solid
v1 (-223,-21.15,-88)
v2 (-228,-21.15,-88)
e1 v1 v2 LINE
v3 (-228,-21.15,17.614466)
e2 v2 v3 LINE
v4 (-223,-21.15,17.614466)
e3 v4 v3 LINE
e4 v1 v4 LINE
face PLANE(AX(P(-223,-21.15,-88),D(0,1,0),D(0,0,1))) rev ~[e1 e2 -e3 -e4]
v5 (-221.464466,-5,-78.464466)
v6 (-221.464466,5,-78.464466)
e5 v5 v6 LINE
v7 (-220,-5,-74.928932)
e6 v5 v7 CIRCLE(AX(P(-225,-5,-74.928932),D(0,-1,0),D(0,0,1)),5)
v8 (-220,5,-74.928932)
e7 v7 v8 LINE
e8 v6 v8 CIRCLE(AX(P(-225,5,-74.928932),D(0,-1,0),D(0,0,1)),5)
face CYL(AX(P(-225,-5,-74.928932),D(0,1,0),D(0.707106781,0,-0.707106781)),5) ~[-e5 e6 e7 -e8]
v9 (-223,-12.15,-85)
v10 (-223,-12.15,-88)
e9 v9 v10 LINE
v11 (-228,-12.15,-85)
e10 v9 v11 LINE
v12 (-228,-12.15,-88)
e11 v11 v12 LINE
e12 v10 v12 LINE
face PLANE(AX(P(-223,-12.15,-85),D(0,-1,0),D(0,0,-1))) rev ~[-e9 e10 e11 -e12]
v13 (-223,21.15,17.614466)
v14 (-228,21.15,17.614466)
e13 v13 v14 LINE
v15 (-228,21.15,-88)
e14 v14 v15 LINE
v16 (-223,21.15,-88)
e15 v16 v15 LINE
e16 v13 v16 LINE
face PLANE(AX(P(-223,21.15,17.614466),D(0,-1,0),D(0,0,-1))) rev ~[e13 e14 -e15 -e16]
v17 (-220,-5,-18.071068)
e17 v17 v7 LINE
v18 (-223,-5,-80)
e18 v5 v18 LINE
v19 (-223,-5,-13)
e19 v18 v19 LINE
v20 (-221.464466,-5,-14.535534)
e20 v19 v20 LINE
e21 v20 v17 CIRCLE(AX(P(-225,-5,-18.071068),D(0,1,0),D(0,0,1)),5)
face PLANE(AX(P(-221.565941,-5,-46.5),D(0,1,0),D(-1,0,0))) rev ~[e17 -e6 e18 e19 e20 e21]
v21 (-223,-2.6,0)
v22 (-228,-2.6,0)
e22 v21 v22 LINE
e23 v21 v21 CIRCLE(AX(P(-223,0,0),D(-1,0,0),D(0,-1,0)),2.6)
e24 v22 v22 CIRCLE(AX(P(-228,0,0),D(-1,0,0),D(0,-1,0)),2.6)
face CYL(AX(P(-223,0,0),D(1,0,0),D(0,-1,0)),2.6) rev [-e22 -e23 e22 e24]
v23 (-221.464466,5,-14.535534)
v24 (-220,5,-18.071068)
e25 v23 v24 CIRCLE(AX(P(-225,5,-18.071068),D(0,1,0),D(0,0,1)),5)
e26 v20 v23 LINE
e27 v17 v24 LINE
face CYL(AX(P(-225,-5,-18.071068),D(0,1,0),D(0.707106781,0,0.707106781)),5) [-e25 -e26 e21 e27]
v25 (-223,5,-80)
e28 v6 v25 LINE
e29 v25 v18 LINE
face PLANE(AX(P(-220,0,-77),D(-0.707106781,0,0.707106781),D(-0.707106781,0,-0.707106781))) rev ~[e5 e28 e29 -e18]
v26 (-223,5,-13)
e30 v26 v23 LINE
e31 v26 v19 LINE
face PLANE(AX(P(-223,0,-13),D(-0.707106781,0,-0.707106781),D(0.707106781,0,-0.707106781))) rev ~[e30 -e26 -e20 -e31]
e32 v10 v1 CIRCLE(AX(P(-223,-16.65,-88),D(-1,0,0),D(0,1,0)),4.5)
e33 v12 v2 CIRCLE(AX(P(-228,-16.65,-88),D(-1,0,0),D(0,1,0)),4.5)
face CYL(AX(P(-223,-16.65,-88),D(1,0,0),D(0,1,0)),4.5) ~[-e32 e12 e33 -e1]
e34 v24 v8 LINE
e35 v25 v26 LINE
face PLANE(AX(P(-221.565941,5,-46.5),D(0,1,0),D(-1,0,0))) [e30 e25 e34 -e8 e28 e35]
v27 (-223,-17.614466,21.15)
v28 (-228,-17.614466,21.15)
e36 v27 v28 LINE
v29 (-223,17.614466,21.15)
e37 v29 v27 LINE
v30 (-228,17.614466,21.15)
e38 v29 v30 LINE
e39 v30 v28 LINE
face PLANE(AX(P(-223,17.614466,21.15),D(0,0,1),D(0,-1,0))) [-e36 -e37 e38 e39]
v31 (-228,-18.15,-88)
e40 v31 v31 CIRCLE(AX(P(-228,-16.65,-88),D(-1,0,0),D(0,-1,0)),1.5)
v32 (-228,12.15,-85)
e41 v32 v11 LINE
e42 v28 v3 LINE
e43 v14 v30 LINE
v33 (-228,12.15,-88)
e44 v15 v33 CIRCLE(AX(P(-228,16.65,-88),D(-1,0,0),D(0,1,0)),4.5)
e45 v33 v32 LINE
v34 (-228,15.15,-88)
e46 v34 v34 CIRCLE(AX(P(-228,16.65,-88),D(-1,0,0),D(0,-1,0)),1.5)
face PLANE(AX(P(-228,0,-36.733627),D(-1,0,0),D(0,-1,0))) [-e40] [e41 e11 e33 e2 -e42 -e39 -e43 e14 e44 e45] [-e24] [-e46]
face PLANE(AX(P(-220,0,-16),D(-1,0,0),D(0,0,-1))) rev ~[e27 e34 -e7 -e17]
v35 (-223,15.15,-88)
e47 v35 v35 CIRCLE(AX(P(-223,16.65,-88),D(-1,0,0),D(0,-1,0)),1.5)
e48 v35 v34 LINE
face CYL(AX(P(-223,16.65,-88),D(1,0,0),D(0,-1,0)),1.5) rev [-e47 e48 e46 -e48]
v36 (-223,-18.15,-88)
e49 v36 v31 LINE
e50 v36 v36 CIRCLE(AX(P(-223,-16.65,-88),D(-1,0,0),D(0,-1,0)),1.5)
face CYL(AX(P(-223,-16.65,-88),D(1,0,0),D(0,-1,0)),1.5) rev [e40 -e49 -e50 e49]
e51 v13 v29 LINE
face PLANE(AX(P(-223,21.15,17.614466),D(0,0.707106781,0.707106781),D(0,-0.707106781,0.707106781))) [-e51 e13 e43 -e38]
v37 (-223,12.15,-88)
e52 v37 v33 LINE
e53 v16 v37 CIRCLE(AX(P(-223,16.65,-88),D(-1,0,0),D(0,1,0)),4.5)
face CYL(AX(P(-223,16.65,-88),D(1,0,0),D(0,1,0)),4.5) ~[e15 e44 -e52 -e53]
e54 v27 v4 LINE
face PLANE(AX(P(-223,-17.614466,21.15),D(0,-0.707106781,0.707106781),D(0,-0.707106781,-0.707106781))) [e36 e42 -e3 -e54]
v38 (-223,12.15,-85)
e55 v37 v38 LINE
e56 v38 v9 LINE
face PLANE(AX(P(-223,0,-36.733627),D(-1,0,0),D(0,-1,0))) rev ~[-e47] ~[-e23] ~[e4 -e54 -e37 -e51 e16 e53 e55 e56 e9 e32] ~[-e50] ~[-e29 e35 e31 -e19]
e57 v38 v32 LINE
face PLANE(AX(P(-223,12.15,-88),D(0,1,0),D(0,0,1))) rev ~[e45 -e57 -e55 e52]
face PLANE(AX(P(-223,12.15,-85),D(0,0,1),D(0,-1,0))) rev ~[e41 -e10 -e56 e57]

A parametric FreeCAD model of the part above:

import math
import FreeCAD as App
import Part
import Sketcher


def edges_at(feature, points):
    """Names of the edges that pass closest to the given points."""
    edges = feature.Shape.Edges
    near = lambda p: min(range(len(edges)), key=lambda i: edges[i].distToShape(Part.Vertex(*p))[0])
    return sorted({f"Edge{near(p) + 1}" for p in points})

doc = App.newDocument("Part")
body = doc.addObject("PartDesign::Body", "Body")

# Sketch on YZ plane
sketch1 = doc.addObject("Sketcher::SketchObject", "Sketch")
body.addObject(sketch1)
sketch1.AttachmentSupport = (doc.YZ_Plane, [""])
sketch1.MapMode = "FlatFace"
sketch1.AttachmentOffset = App.Placement(App.Vector(0, 0, -223), App.Rotation())
sketch1.addGeometry(Part.ArcOfCircle(Part.Circle(App.Vector(16.6, -88, 0), App.Vector(0, 0, 1), 4.5), math.radians(180), math.radians(360)), False)
sketch1.addGeometry(Part.LineSegment(App.Vector(12.2, -88, 0), App.Vector(12.2, -85, 0)), False)
sketch1.addGeometry(Part.LineSegment(App.Vector(12.2, -85, 0), App.Vector(-12.2, -85, 0)), False)
sketch1.addGeometry(Part.LineSegment(App.Vector(-12.2, -85, 0), App.Vector(-12.2, -88, 0)), False)
sketch1.addGeometry(Part.ArcOfCircle(Part.Circle(App.Vector(-16.6, -88, 0), App.Vector(0, 0, 1), 4.5), math.radians(180), math.radians(360)), False)
sketch1.addGeometry(Part.LineSegment(App.Vector(-21.1, -88, 0), App.Vector(-21.1, 17.6, 0)), False)
sketch1.addGeometry(Part.LineSegment(App.Vector(-21.1, 17.6, 0), App.Vector(-17.6, 21.1, 0)), False)
sketch1.addGeometry(Part.LineSegment(App.Vector(-17.6, 21.1, 0), App.Vector(17.6, 21.1, 0)), False)
sketch1.addGeometry(Part.LineSegment(App.Vector(17.6, 21.1, 0), App.Vector(21.1, 17.6, 0)), False)
sketch1.addGeometry(Part.LineSegment(App.Vector(21.1, 17.6, 0), App.Vector(21.1, -88, 0)), False)
sketch1.addGeometry(Part.Circle(App.Vector(16.6, -88, 0), App.Vector(0, 0, 1), 1.5), False)
sketch1.addGeometry(Part.Circle(App.Vector(-16.6, -88, 0), App.Vector(0, 0, 1), 1.5), False)
sketch1.addGeometry(Part.Circle(App.Vector(0, 0, 0), App.Vector(0, 0, 1), 2.6), False)
sketch1.addConstraint(Sketcher.Constraint("Tangent", 0, 1, 1, 1))
sketch1.addConstraint(Sketcher.Constraint("Coincident", 1, 2, 2, 1))
sketch1.addConstraint(Sketcher.Constraint("Coincident", 2, 2, 3, 1))
sketch1.addConstraint(Sketcher.Constraint("Tangent", 3, 2, 4, 2))
sketch1.addConstraint(Sketcher.Constraint("Tangent", 4, 1, 5, 1))
sketch1.addConstraint(Sketcher.Constraint("Coincident", 5, 2, 6, 1))
sketch1.addConstraint(Sketcher.Constraint("Coincident", 6, 2, 7, 1))
sketch1.addConstraint(Sketcher.Constraint("Coincident", 7, 2, 8, 1))
sketch1.addConstraint(Sketcher.Constraint("Coincident", 8, 2, 9, 1))
sketch1.addConstraint(Sketcher.Constraint("Tangent", 9, 2, 0, 2))
sketch1.addConstraint(Sketcher.Constraint("Vertical", 1))
sketch1.addConstraint(Sketcher.Constraint("Horizontal", 2))
sketch1.addConstraint(Sketcher.Constraint("Vertical", 3))
sketch1.addConstraint(Sketcher.Constraint("Vertical", 5))
sketch1.addConstraint(Sketcher.Constraint("Horizontal", 7))
sketch1.addConstraint(Sketcher.Constraint("Vertical", 9))
sketch1.addConstraint(Sketcher.Constraint("Coincident", 12, 3, -1, 1))
sketch1.addConstraint(Sketcher.Constraint("Coincident", 10, 3, 0, 3))
sketch1.addConstraint(Sketcher.Constraint("Coincident", 11, 3, 4, 3))
sketch1.addConstraint(Sketcher.Constraint("Equal", 0, 4))
sketch1.addConstraint(Sketcher.Constraint("Equal", 10, 11))
sketch1.addConstraint(Sketcher.Constraint("Symmetric", 0, 3, 4, 3, -2))
sketch1.addConstraint(Sketcher.Constraint("Perpendicular", 6, 8))
sketch1.addConstraint(Sketcher.Constraint("Horizontal", 5, 2, 8, 2))
sketch1.addConstraint(Sketcher.Constraint("Equal", 6, 8))
sketch1.addConstraint(Sketcher.Constraint("Diameter", 10, 3.0))
sketch1.addConstraint(Sketcher.Constraint("Diameter", 12, 5.2))
sketch1.addConstraint(Sketcher.Constraint("Radius", 0, 4.5))
sketch1.addConstraint(Sketcher.Constraint("DistanceY", 1, 1, 1, 2, 3.0))
sketch1.addConstraint(Sketcher.Constraint("Distance", 6, 5.0))
sketch1.addConstraint(Sketcher.Constraint("DistanceX", 2, 2, 2, 1, 24.3))
sketch1.addConstraint(Sketcher.Constraint("DistanceY", 0, 3, -1, 1, 88.0))
sketch1.addConstraint(Sketcher.Constraint("DistanceY", -1, 1, 6, 2, 21.15))
pad1 = doc.addObject("PartDesign::Pad", "Pad")
body.addObject(pad1)
pad1.Profile = sketch1
pad1.Length = 5
pad1.Reversed = True

# Sketch on XZ plane
sketch2 = doc.addObject("Sketcher::SketchObject", "Sketch001")
body.addObject(sketch2)
sketch2.AttachmentSupport = (doc.XZ_Plane, [""])
sketch2.MapMode = "FlatFace"
sketch2.addGeometry(Part.LineSegment(App.Vector(-220, -16, 0), App.Vector(-223, -13, 0)), False)
sketch2.addGeometry(Part.LineSegment(App.Vector(-223, -13, 0), App.Vector(-223, -80, 0)), False)
sketch2.addGeometry(Part.LineSegment(App.Vector(-223, -80, 0), App.Vector(-220, -77, 0)), False)
sketch2.addGeometry(Part.LineSegment(App.Vector(-220, -77, 0), App.Vector(-220, -16, 0)), False)
sketch2.addConstraint(Sketcher.Constraint("Coincident", 0, 2, 1, 1))
sketch2.addConstraint(Sketcher.Constraint("Coincident", 1, 2, 2, 1))
sketch2.addConstraint(Sketcher.Constraint("Coincident", 2, 2, 3, 1))
sketch2.addConstraint(Sketcher.Constraint("Coincident", 3, 2, 0, 1))
sketch2.addConstraint(Sketcher.Constraint("Vertical", 1))
sketch2.addConstraint(Sketcher.Constraint("Vertical", 3))
sketch2.addConstraint(Sketcher.Constraint("Perpendicular", 0, 2))
sketch2.addConstraint(Sketcher.Constraint("Equal", 0, 2))
sketch2.addConstraint(Sketcher.Constraint("DistanceY", 1, 2, 1, 1, 67.0))
sketch2.addConstraint(Sketcher.Constraint("DistanceY", 3, 1, 3, 2, 61.0))
sketch2.addConstraint(Sketcher.Constraint("DistanceX", 0, 2, -1, 1, 223.0))
sketch2.addConstraint(Sketcher.Constraint("DistanceY", 0, 2, -1, 1, 13.0))
pad2 = doc.addObject("PartDesign::Pad", "Pad001")
body.addObject(pad2)
pad2.Profile = sketch2
pad2.Length = 10
pad2.Midplane = True
doc.recompute()

fillet = doc.addObject("PartDesign::Fillet", "Fillet")
body.addObject(fillet)
fillet.Base = (pad2, edges_at(pad2, [(-220, 0, -16), (-220, 0, -77)]))
fillet.Radius = 5

doc.recompute()
